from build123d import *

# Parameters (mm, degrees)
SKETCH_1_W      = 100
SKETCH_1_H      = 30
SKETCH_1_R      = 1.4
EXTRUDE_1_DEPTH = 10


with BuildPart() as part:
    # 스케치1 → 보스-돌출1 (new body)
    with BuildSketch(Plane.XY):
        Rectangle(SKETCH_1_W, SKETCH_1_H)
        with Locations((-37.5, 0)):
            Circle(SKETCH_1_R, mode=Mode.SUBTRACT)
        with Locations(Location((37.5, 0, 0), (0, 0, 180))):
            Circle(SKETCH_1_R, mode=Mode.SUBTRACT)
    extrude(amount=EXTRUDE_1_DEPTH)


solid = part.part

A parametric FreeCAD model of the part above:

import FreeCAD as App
import Part
import Sketcher


def add_polygon(sketch, points):
    """Adds a closed chain of lines whose ends are joined by coincident constraints."""
    first, n = sketch.GeometryCount, len(points)
    for a, b in zip(points, points[1:] + points[:1]):
        sketch.addGeometry(Part.LineSegment(App.Vector(*a, 0), App.Vector(*b, 0)), False)
    for i in range(n):
        sketch.addConstraint(Sketcher.Constraint("Coincident", first + i, 2, first + (i + 1) % n, 1))

doc = App.newDocument("Part")
body = doc.addObject("PartDesign::Body", "Body")

# Sketch on XY plane
sketch1 = body.newObject("Sketcher::SketchObject", "Sketch")
sketch1.AttachmentSupport = (doc.getObject("XY_Plane"), [""])
sketch1.MapMode = "FlatFace"
add_polygon(sketch1, [(-50, 15), (-50, -15), (50, -15), (50, 15)])  # lines 0-3
sketch1.addGeometry(Part.Circle(App.Vector(-37.5, 0, 0), App.Vector(0, 0, 1), 1.4), False)  # 4
sketch1.addGeometry(Part.Circle(App.Vector(37.5, 0, 0), App.Vector(0, 0, 1), 1.4), False)  # 5
sketch1.addConstraint([
    Sketcher.Constraint("Vertical", 0),
    Sketcher.Constraint("Horizontal", 1),
    Sketcher.Constraint("Vertical", 2),
    Sketcher.Constraint("Horizontal", 3),
    Sketcher.Constraint("Equal", 4, 5),
    Sketcher.Constraint("Symmetric", 4, 3, 5, 3, -1, 1),
    Sketcher.Constraint("Symmetric", 0, 2, 2, 2, -1, 1),
    Sketcher.Constraint("PointOnObject", 4, 3, -1),
    Sketcher.Constraint("Diameter", 4, 2.8),
    Sketcher.Constraint("DistanceX", 1, 1, 1, 2, 100.0),
    Sketcher.Constraint("DistanceY", 0, 2, 0, 1, 30.0),
    Sketcher.Constraint("DistanceX", 4, 3, 5, 3, 75.0),
])
pad1 = body.newObject("PartDesign::Pad", "Pad")
pad1.Profile = sketch1
pad1.Length = 10

doc.recompute()
